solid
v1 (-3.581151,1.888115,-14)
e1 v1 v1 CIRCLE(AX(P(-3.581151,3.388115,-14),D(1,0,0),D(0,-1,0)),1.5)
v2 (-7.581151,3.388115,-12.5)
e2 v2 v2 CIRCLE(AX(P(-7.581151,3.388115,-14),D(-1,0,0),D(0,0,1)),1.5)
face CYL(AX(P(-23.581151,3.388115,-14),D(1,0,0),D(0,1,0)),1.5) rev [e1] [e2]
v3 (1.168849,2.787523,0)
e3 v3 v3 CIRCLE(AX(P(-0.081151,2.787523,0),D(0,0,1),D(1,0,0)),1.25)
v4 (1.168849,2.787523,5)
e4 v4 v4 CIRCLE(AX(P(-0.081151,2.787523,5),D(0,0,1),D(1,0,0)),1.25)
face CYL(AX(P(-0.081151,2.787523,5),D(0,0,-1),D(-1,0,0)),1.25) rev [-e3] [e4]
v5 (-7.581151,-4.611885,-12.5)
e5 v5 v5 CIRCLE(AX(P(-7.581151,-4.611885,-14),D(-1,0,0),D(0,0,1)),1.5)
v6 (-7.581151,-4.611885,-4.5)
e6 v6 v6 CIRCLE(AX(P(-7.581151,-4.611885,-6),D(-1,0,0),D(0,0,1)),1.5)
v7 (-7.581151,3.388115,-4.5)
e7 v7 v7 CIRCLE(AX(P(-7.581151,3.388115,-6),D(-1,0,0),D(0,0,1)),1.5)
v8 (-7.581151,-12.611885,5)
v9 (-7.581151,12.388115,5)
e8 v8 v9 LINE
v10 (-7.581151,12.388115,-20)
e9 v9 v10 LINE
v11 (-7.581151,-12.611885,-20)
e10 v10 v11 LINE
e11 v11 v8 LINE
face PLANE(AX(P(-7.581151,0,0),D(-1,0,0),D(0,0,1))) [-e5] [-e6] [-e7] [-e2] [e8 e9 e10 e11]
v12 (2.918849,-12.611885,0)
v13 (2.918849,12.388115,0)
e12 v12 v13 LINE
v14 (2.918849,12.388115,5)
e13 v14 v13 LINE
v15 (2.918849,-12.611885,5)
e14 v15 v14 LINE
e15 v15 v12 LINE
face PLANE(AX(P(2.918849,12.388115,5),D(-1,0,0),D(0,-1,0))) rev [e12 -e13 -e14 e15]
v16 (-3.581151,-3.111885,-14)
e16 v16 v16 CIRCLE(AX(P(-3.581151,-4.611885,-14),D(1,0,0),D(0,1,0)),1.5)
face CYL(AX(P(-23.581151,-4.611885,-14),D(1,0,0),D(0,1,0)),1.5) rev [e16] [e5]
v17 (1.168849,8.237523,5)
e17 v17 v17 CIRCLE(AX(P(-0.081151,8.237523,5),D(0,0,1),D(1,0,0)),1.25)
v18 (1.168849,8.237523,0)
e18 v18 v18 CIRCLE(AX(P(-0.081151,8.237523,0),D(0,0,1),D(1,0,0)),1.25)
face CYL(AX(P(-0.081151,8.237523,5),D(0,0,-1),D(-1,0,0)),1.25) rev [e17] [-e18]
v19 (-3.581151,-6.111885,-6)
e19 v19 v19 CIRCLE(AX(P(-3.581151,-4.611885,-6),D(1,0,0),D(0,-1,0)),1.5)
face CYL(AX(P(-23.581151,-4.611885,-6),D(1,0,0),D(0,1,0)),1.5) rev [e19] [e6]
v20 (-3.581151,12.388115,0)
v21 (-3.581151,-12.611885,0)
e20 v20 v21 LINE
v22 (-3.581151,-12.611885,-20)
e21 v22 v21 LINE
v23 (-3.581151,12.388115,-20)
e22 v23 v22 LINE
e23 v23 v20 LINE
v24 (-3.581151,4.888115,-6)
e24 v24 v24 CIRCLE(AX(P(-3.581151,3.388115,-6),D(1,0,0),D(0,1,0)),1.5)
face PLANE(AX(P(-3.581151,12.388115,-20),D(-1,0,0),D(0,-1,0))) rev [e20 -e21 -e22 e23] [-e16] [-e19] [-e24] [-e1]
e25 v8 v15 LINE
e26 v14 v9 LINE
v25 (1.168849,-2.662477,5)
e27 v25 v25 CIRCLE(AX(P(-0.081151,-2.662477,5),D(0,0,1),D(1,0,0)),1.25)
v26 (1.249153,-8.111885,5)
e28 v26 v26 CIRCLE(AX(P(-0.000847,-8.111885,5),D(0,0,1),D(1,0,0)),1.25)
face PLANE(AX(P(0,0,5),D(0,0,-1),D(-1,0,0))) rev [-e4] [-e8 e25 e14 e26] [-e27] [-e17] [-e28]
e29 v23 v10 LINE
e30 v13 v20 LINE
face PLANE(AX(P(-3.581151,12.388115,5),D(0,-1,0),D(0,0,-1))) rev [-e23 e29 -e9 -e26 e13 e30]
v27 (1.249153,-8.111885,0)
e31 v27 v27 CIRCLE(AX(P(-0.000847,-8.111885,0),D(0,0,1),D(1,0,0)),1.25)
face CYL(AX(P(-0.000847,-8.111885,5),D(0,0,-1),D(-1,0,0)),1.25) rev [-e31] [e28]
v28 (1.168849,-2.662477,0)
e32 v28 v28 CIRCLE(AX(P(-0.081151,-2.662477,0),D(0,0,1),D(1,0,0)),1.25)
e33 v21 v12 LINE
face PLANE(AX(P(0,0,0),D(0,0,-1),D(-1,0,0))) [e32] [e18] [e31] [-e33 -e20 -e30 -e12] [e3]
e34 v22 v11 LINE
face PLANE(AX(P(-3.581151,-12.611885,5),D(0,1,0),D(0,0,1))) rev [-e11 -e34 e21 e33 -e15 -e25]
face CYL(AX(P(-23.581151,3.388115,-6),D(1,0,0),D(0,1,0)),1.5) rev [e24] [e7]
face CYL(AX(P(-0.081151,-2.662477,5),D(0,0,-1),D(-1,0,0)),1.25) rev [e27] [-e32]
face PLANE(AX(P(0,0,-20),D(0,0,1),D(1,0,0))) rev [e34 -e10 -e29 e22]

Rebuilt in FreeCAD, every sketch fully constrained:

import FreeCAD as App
import Part
import Sketcher

V = App.Vector
Q = App.Units.Quantity

doc = App.newDocument("Part")
body = doc.addObject("PartDesign::Body", "Body")

sketch1 = body.newObject("Sketcher::SketchObject", "Sketch")
sketch1.AttachmentSupport = (doc.getObject("XY_Plane"), [""])
sketch1.MapMode = "FlatFace"
sketch1.addGeometry(Part.LineSegment(V(-3.581151, -12.611885, 0), V(2.918849, -12.611885, 0)), False)
sketch1.addGeometry(Part.LineSegment(V(2.918849, -12.611885, 0), V(2.918849, 12.388115, 0)), False)
sketch1.addGeometry(Part.LineSegment(V(2.918849, 12.388115, 0), V(-3.581151, 12.388115, 0)), False)
sketch1.addGeometry(Part.LineSegment(V(-3.581151, 12.388115, 0), V(-3.581151, -12.611885, 0)), False)
sketch1.addGeometry(Part.Circle(V(-0.081151, -2.662477, 0), V(0, 0, 1), 1.25), False)
sketch1.addGeometry(Part.Circle(V(-0.000847, -8.111885, 0), V(0, 0, 1), 1.25), False)
sketch1.addGeometry(Part.Circle(V(-0.081151, 2.787523, 0), V(0, 0, 1), 1.25), False)
sketch1.addGeometry(Part.Circle(V(-0.081151, 8.237523, 0), V(0, 0, 1), 1.25), False)
sketch1.addConstraint(Sketcher.Constraint("Coincident", 0, 2, 1, 1))
sketch1.addConstraint(Sketcher.Constraint("Coincident", 1, 2, 2, 1))
sketch1.addConstraint(Sketcher.Constraint("Coincident", 2, 2, 3, 1))
sketch1.addConstraint(Sketcher.Constraint("Coincident", 3, 2, 0, 1))
sketch1.addConstraint(Sketcher.Constraint("Horizontal", 0))
sketch1.addConstraint(Sketcher.Constraint("Vertical", 1))
sketch1.addConstraint(Sketcher.Constraint("Horizontal", 2))
sketch1.addConstraint(Sketcher.Constraint("Vertical", 3))
sketch1.addConstraint(Sketcher.Constraint("Equal", 4, 5))
sketch1.addConstraint(Sketcher.Constraint("Equal", 5, 6))
sketch1.addConstraint(Sketcher.Constraint("Equal", 6, 7))
sketch1.addConstraint(Sketcher.Constraint("Vertical", 4, 3, 6, 3))
sketch1.addConstraint(Sketcher.Constraint("Vertical", 6, 3, 7, 3))
sketch1.addConstraint(Sketcher.Constraint("Diameter", 4, Q("2.5 mm")))
sketch1.addConstraint(Sketcher.Constraint("DistanceY", 1, 1, 1, 2, Q("25 mm")))
sketch1.addConstraint(Sketcher.Constraint("DistanceX", 0, 1, 0, 2, Q("6.5 mm")))
sketch1.addConstraint(Sketcher.Constraint("DistanceX", 4, 3, 0, 2, Q("3 mm")))
sketch1.addConstraint(Sketcher.Constraint("DistanceY", 4, 3, 7, 3, Q("10.9 mm")))
sketch1.addConstraint(Sketcher.Constraint("DistanceY", 0, 2, 5, 3, Q("4.5 mm")))
sketch1.addConstraint(Sketcher.Constraint("DistanceY", 4, 3, 6, 3, Q("5.45 mm")))
sketch1.addConstraint(Sketcher.Constraint("DistanceX", 4, 3, -1, 1, Q("0.081151 mm")))
sketch1.addConstraint(Sketcher.Constraint("DistanceY", 5, 3, 4, 3, Q("5.449408 mm")))
sketch1.addConstraint(Sketcher.Constraint("DistanceY", 4, 3, -1, 1, Q("2.662477 mm")))
sketch1.addConstraint(Sketcher.Constraint("DistanceX", 5, 3, -1, 1, Q("0.000847 mm")))
pad1 = body.newObject("PartDesign::Pad", "Pad")
pad1.Profile = sketch1
pad1.Length = 5

sketch2 = body.newObject("Sketcher::SketchObject", "Sketch001")
sketch2.AttachmentSupport = (doc.getObject("YZ_Plane"), [""])
sketch2.MapMode = "FlatFace"
sketch2.AttachmentOffset = App.Placement(V(0, 0, -3.581151), App.Rotation())
sketch2.addGeometry(Part.LineSegment(V(12.388115, 0, 0), V(-12.611885, 0, 0)), False)
sketch2.addGeometry(Part.LineSegment(V(-12.611885, 0, 0), V(-12.611885, 5, 0)), False)
sketch2.addGeometry(Part.LineSegment(V(-12.611885, 5, 0), V(12.388115, 5, 0)), False)
sketch2.addGeometry(Part.LineSegment(V(12.388115, 5, 0), V(12.388115, 0, 0)), False)
sketch2.addConstraint(Sketcher.Constraint("Coincident", 0, 2, 1, 1))
sketch2.addConstraint(Sketcher.Constraint("Coincident", 1, 2, 2, 1))
sketch2.addConstraint(Sketcher.Constraint("Coincident", 2, 2, 3, 1))
sketch2.addConstraint(Sketcher.Constraint("Coincident", 3, 2, 0, 1))
sketch2.addConstraint(Sketcher.Constraint("Horizontal", 0))
sketch2.addConstraint(Sketcher.Constraint("Vertical", 1))
sketch2.addConstraint(Sketcher.Constraint("Horizontal", 2))
sketch2.addConstraint(Sketcher.Constraint("Vertical", 3))
sketch2.addConstraint(Sketcher.Constraint("PointOnObject", 0, 2, -1))
sketch2.addConstraint(Sketcher.Constraint("DistanceX", 0, 2, 0, 1, Q("25 mm")))
sketch2.addConstraint(Sketcher.Constraint("DistanceY", 1, 1, 1, 2, Q("5 mm")))
sketch2.addConstraint(Sketcher.Constraint("DistanceX", 0, 2, -1, 1, Q("12.611885 mm")))
pad2 = body.newObject("PartDesign::Pad", "Pad001")
pad2.Profile = sketch2
pad2.Length = 4
pad2.Reversed = True

sketch3 = body.newObject("Sketcher::SketchObject", "Sketch002")
sketch3.AttachmentSupport = (doc.getObject("XY_Plane"), [""])
sketch3.MapMode = "FlatFace"
sketch3.addGeometry(Part.LineSegment(V(-3.581151, 12.388115, 0), V(-3.581151, -12.611885, 0)), False)
sketch3.addGeometry(Part.LineSegment(V(-3.581151, -12.611885, 0), V(-7.581151, -12.611885, 0)), False)
sketch3.addGeometry(Part.LineSegment(V(-7.581151, -12.611885, 0), V(-7.581151, 12.388115, 0)), False)
sketch3.addGeometry(Part.LineSegment(V(-7.581151, 12.388115, 0), V(-3.581151, 12.388115, 0)), False)
sketch3.addConstraint(Sketcher.Constraint("Coincident", 0, 2, 1, 1))
sketch3.addConstraint(Sketcher.Constraint("Coincident", 1, 2, 2, 1))
sketch3.addConstraint(Sketcher.Constraint("Coincident", 2, 2, 3, 1))
sketch3.addConstraint(Sketcher.Constraint("Coincident", 3, 2, 0, 1))
sketch3.addConstraint(Sketcher.Constraint("Vertical", 0))
sketch3.addConstraint(Sketcher.Constraint("Horizontal", 1))
sketch3.addConstraint(Sketcher.Constraint("Vertical", 2))
sketch3.addConstraint(Sketcher.Constraint("Horizontal", 3))
sketch3.addConstraint(Sketcher.Constraint("DistanceX", 1, 2, 1, 1, Q("4 mm")))
sketch3.addConstraint(Sketcher.Constraint("DistanceY", 0, 2, 0, 1, Q("25 mm")))
sketch3.addConstraint(Sketcher.Constraint("DistanceX", 0, 2, -1, 1, Q("3.581151 mm")))
sketch3.addConstraint(Sketcher.Constraint("DistanceY", 0, 2, -1, 1, Q("12.611885 mm")))
pad3 = body.newObject("PartDesign::Pad", "Pad002")
pad3.Profile = sketch3
pad3.Length = 20
pad3.Reversed = True

sketch4 = body.newObject("Sketcher::SketchObject", "Sketch003")
sketch4.AttachmentSupport = (doc.getObject("YZ_Plane"), [""])
sketch4.MapMode = "FlatFace"
sketch4.AttachmentOffset = App.Placement(V(0, 0, -3.581151), App.Rotation())
sketch4.addGeometry(Part.Circle(V(3.388115, -6, 0), V(0, 0, 1), 1.5), False)
sketch4.addGeometry(Part.Circle(V(3.388115, -14, 0), V(0, 0, 1), 1.5), False)
sketch4.addGeometry(Part.Circle(V(-4.611885, -14, 0), V(0, 0, 1), 1.5), False)
sketch4.addGeometry(Part.Circle(V(-4.611885, -6, 0), V(0, 0, 1), 1.5), False)
sketch4.addConstraint(Sketcher.Constraint("Equal", 0, 1))
sketch4.addConstraint(Sketcher.Constraint("Equal", 1, 2))
sketch4.addConstraint(Sketcher.Constraint("Equal", 2, 3))
sketch4.addConstraint(Sketcher.Constraint("Horizontal", 1, 3, 2, 3))
sketch4.addConstraint(Sketcher.Constraint("Horizontal", 0, 3, 3, 3))
sketch4.addConstraint(Sketcher.Constraint("Vertical", 0, 3, 1, 3))
sketch4.addConstraint(Sketcher.Constraint("Vertical", 2, 3, 3, 3))
sketch4.addConstraint(Sketcher.Constraint("Diameter", 0, Q("3 mm")))
sketch4.addConstraint(Sketcher.Constraint("DistanceY", 0, 3, -1, 1, Q("6 mm")))
sketch4.addConstraint(Sketcher.Constraint("DistanceY", 1, 3, -1, 1, Q("14 mm")))
sketch4.addConstraint(Sketcher.Constraint("DistanceX", 2, 3, 1, 3, Q("8 mm")))
sketch4.addConstraint(Sketcher.Constraint("DistanceX", -1, 1, 0, 3, Q("3.388115 mm")))
pocket1 = body.newObject("PartDesign::Pocket", "Pocket")
pocket1.Profile = sketch4
pocket1.Length = 20

doc.recompute()
